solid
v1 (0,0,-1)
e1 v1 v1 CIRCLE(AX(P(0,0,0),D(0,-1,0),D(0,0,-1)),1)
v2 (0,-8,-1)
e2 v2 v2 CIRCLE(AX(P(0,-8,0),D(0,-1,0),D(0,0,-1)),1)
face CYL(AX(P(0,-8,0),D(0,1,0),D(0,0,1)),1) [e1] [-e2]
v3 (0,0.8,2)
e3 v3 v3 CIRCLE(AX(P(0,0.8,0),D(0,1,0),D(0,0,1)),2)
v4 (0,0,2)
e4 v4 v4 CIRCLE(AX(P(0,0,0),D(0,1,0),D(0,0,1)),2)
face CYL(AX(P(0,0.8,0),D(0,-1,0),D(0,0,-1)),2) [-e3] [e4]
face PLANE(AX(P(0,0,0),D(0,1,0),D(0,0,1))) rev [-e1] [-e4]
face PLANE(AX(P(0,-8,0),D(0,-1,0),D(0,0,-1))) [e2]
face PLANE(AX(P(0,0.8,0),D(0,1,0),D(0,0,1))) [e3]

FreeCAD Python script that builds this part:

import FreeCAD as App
import Part
import Sketcher
from FreeCAD import Vector

doc = App.newDocument("Part")
body = doc.addObject("PartDesign::Body", "Body")

sketch1 = doc.addObject("Sketcher::SketchObject", "Sketch")
body.addObject(sketch1)
sketch1.AttachmentSupport = (doc.XZ_Plane, [""])
sketch1.MapMode = "FlatFace"
sketch1.addGeometry(Part.Circle(Vector(0, 0, 0), Vector(0, 0, 1), 2), False)
sketch1.addConstraint([
    Sketcher.Constraint("Coincident", 0, 3, -1, 1),
    Sketcher.Constraint("Diameter", 0, 4.0),
])
pad1 = doc.addObject("PartDesign::Pad", "Pad")
body.addObject(pad1)
pad1.Profile = sketch1
pad1.Length = 0.8
pad1.Reversed = True

sketch2 = doc.addObject("Sketcher::SketchObject", "Sketch001")
body.addObject(sketch2)
sketch2.AttachmentSupport = (doc.XZ_Plane, [""])
sketch2.MapMode = "FlatFace"
sketch2.addGeometry(Part.Circle(Vector(0, 0, 0), Vector(0, 0, 1), 1), False)
sketch2.addConstraint([
    Sketcher.Constraint("Coincident", 0, 3, -1, 1),
    Sketcher.Constraint("Diameter", 0, 2.0),
])
pad2 = doc.addObject("PartDesign::Pad", "Pad001")
body.addObject(pad2)
pad2.Profile = sketch2
pad2.Length = 8

doc.recompute()
